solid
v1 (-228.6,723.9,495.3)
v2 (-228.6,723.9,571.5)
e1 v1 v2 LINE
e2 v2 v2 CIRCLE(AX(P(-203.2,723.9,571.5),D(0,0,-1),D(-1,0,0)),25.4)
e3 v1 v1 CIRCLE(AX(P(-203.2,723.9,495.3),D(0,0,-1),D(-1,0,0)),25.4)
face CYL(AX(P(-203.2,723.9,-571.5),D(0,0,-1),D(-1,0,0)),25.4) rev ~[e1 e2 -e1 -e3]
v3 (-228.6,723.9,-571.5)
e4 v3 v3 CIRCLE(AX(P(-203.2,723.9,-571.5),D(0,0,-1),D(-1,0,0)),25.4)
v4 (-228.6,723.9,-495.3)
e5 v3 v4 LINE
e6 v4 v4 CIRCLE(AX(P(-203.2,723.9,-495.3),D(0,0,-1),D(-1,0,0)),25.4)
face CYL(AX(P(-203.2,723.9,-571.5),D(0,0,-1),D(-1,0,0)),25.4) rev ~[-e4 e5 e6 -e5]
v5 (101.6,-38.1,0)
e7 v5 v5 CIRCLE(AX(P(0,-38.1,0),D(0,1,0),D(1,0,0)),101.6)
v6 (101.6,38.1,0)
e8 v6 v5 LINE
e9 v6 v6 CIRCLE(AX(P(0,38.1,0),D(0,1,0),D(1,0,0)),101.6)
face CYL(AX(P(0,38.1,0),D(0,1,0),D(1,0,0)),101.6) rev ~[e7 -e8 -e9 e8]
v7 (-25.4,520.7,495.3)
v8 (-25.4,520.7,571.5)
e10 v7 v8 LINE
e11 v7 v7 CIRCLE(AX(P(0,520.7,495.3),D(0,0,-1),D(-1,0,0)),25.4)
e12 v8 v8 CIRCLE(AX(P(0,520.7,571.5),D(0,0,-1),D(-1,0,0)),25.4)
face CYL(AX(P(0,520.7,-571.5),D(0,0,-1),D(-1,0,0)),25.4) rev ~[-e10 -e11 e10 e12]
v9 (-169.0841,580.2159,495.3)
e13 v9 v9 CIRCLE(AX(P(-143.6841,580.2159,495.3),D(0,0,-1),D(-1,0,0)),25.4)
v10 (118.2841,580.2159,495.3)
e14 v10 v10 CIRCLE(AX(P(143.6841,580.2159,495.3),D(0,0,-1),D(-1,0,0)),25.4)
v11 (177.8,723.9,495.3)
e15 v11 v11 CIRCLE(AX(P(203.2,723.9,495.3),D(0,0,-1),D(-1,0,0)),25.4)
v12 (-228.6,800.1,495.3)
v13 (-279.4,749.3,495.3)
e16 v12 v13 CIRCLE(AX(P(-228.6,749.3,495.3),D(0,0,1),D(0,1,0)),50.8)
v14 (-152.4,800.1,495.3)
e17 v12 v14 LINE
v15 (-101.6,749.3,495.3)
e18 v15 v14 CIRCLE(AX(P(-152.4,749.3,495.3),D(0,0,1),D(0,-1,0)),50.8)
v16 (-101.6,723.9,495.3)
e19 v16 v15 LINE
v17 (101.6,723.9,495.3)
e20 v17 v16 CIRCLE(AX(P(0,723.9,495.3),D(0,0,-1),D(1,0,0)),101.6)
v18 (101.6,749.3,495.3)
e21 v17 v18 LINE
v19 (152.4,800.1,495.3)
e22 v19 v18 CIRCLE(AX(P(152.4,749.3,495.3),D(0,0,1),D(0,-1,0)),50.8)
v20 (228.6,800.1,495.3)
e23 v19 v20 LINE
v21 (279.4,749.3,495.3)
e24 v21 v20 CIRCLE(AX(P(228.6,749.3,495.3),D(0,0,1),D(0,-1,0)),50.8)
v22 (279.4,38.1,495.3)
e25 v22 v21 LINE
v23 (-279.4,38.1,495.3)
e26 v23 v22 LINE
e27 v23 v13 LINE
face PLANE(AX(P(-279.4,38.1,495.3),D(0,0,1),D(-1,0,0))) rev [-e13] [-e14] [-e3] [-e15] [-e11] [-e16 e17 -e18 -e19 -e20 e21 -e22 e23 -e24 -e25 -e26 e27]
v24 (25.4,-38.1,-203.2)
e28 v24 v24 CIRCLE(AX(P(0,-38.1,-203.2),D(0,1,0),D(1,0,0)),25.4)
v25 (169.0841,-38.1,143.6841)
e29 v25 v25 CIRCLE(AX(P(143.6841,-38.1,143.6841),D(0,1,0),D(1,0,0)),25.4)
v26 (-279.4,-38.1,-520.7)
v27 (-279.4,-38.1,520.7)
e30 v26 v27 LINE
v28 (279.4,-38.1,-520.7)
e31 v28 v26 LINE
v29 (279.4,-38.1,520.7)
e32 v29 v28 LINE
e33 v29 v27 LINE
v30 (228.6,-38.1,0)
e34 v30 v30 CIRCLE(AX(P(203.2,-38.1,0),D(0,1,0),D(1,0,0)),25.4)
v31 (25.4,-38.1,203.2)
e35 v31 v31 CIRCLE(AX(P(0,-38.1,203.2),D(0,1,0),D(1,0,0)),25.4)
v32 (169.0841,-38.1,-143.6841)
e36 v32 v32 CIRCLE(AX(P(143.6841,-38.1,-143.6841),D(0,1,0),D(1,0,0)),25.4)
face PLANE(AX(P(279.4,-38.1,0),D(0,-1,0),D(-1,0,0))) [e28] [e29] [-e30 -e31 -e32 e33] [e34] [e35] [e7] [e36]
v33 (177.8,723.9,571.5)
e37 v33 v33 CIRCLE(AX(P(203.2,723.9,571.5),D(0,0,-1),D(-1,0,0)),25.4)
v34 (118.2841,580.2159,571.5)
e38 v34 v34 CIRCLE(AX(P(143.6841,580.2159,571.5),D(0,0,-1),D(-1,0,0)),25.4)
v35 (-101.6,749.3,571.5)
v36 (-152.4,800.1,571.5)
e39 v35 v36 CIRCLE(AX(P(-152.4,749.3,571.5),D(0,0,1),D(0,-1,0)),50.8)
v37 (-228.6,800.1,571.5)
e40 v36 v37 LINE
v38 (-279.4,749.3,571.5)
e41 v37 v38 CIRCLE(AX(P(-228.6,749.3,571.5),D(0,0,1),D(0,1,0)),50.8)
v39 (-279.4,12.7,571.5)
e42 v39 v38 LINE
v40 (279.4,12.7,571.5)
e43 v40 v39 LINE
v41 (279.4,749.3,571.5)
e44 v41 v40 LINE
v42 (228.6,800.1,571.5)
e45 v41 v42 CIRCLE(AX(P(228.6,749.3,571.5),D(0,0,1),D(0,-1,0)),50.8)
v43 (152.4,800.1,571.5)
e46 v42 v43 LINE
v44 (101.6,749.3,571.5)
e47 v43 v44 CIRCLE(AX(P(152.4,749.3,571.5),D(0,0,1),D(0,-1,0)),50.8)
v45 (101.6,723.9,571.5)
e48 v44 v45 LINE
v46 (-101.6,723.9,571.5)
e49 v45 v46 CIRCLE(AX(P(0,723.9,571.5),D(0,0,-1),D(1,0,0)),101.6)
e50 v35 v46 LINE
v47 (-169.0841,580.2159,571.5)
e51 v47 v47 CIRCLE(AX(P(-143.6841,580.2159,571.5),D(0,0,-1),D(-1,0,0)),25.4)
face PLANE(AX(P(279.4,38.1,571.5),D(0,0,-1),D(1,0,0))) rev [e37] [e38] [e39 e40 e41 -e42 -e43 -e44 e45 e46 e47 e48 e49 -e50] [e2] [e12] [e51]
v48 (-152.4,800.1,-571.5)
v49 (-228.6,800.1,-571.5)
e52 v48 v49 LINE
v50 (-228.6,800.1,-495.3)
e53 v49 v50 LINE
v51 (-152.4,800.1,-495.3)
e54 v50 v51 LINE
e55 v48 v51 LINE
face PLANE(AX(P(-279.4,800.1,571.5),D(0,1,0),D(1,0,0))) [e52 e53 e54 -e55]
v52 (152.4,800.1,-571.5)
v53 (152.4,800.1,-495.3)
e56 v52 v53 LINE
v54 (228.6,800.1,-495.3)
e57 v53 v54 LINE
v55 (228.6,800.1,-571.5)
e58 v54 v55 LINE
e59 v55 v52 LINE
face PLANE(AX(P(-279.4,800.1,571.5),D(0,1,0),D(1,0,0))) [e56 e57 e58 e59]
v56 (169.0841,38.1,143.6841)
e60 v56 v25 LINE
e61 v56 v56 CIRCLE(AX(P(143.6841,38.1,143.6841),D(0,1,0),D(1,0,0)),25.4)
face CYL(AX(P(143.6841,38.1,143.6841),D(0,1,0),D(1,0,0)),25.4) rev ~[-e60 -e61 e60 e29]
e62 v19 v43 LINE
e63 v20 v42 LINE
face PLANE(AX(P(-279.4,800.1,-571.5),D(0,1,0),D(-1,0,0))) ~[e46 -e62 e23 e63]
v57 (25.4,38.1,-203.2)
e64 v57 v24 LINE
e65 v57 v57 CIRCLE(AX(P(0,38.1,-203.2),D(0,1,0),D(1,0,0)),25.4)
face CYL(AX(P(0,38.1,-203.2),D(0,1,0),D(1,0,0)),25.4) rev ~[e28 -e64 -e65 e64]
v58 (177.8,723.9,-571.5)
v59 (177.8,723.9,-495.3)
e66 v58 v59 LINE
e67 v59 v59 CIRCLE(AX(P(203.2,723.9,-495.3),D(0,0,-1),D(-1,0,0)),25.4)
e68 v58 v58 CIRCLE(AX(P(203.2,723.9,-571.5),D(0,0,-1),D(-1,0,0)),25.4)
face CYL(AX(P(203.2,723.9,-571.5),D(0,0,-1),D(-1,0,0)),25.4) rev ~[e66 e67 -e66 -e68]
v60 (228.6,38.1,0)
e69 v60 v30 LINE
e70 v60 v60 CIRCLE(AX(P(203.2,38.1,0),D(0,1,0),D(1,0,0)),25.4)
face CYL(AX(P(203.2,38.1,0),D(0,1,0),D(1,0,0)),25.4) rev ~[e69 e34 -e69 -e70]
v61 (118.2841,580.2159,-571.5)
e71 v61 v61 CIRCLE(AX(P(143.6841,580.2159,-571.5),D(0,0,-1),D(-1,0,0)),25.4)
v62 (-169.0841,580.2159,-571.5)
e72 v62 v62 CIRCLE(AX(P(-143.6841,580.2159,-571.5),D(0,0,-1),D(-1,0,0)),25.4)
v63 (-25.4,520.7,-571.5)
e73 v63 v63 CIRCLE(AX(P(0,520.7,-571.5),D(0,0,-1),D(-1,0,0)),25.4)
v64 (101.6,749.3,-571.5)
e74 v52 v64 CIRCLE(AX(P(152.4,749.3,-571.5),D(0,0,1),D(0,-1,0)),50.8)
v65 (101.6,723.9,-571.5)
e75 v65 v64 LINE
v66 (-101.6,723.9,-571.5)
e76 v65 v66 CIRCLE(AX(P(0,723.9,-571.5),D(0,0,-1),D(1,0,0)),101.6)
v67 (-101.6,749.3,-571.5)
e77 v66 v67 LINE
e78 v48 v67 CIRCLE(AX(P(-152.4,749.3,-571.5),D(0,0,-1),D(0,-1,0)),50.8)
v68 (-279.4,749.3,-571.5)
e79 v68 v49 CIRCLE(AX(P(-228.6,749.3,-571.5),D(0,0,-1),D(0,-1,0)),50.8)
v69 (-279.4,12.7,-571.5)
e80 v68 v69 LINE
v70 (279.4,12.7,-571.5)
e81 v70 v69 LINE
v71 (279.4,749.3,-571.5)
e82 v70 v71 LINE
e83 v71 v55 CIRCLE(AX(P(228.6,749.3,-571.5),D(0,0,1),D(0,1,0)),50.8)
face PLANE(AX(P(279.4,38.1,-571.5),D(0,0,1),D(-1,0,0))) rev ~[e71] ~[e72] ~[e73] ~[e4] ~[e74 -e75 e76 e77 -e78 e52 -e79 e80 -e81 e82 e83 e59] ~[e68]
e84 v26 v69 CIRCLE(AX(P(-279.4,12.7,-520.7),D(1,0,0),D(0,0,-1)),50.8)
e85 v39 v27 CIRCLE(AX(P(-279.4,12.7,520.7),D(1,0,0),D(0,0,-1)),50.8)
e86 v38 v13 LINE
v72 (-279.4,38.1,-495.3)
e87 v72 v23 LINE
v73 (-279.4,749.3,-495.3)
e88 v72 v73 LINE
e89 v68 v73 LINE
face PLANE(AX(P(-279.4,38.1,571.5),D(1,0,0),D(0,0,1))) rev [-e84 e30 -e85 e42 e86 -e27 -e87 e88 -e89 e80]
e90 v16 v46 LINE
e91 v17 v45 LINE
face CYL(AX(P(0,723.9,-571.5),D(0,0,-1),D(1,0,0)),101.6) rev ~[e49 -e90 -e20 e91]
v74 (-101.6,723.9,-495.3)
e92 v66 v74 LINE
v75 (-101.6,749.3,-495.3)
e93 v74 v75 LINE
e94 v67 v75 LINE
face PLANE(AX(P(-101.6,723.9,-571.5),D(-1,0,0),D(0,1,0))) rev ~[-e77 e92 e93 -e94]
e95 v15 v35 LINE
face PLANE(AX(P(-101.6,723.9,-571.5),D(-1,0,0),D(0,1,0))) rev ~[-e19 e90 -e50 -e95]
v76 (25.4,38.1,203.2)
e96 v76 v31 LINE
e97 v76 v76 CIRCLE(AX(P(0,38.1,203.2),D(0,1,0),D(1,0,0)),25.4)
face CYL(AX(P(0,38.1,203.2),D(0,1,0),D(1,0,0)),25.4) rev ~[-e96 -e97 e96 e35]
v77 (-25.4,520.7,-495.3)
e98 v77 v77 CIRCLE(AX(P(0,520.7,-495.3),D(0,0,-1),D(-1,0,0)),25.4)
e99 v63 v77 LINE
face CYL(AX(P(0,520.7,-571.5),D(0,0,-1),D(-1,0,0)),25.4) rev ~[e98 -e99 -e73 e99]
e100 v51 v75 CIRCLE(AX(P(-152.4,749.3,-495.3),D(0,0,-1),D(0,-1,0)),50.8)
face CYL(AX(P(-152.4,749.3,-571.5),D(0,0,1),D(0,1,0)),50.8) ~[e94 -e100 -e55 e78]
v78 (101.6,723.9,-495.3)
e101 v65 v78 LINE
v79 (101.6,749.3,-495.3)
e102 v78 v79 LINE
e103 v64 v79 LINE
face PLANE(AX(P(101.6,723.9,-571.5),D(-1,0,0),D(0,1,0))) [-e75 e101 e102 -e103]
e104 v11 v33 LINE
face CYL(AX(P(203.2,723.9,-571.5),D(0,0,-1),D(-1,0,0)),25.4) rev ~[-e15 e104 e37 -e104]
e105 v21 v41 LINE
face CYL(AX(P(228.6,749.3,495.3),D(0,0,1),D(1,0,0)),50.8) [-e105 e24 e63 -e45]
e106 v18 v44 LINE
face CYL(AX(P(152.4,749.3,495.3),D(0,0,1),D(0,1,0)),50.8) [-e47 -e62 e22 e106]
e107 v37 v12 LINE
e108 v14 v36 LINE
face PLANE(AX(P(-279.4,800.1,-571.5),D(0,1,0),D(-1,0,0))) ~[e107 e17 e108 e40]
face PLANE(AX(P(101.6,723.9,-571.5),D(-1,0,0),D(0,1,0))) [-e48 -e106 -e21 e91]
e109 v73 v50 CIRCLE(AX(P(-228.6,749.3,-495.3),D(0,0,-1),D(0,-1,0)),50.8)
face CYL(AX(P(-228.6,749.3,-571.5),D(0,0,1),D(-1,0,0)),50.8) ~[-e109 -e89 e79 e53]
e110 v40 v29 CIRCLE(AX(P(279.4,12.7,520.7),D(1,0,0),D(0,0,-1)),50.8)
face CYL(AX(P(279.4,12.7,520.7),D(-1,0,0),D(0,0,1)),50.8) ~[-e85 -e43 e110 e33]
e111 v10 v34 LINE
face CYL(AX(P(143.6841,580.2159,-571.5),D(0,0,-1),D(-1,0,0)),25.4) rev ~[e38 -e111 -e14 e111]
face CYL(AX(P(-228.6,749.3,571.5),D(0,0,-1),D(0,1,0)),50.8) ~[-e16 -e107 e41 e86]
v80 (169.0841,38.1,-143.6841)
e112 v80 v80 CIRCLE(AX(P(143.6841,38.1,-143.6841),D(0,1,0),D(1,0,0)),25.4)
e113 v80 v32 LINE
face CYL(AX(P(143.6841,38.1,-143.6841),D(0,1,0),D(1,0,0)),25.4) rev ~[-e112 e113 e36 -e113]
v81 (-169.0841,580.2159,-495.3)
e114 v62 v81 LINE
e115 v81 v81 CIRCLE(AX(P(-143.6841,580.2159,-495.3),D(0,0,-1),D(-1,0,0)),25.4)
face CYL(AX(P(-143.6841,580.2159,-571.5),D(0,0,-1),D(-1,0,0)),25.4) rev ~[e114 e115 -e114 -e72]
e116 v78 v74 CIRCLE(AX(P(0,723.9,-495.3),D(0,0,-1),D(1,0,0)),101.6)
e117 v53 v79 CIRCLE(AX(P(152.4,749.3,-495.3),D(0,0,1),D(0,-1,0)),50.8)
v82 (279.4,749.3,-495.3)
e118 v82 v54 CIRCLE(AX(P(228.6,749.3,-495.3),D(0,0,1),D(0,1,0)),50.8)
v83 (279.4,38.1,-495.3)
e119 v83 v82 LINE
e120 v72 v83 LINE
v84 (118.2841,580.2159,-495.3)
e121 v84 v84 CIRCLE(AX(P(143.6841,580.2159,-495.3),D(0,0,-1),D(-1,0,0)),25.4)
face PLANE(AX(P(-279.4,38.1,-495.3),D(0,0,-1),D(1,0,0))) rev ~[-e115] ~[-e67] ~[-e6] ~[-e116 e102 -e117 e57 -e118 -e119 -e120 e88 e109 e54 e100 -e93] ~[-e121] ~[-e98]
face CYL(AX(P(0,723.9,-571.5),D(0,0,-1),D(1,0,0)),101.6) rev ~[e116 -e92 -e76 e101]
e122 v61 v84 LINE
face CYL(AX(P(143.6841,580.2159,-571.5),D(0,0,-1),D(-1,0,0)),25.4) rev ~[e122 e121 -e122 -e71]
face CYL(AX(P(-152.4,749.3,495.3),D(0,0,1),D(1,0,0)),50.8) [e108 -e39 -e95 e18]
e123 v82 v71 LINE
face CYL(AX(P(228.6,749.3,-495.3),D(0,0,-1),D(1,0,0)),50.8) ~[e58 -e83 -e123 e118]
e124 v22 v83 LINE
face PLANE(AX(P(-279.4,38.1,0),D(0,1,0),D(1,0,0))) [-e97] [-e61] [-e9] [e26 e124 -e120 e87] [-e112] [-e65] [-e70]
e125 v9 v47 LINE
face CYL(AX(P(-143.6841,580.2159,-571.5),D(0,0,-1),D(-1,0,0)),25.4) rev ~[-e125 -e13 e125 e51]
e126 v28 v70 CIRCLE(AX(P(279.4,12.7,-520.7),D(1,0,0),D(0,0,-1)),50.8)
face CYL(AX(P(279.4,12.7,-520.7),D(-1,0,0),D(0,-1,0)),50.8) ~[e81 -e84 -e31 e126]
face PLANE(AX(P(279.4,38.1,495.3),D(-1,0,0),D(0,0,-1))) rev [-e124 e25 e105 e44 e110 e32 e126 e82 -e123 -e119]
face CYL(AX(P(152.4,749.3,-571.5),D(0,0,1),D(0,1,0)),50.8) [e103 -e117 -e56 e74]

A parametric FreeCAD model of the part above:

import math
import FreeCAD as App
import Part
import Sketcher
Q = App.Units.Quantity


def edges_at(feature, points):
    """Names of the edges that pass closest to the given points."""
    edges = feature.Shape.Edges
    near = lambda p: min(range(len(edges)), key=lambda i: edges[i].distToShape(Part.Vertex(*p))[0])
    return sorted({f"Edge{near(p) + 1}" for p in points})

doc = App.newDocument("Part")
params = doc.addObject("Spreadsheet::Sheet", "Params")
for row, (alias, value) in enumerate([
    ("sketch1_width", "22 in"),
    ("sketch1_height", "3 in"),
    ("pad1_length", "45 in"),
    ("sketch2_height", "3 in"),
    ("sketch2_width", "22 in"),
    ("pad2_length", "30 in"),
    ("sketch3_diameter", "8 in"),
    ("sketch3_diameter2", "2 in"),
    ("sketch4_diameter", "2 in"),
    ("sketch4_radius", "4 in"),
    ("sketch4_height", "3 in"),
    ("fillet_radius", "2 in"),
], start=1):
    params.set(f"A{row}", alias)
    params.set(f"B{row}", "=" + value)
    params.setAlias(f"B{row}", alias)

body = doc.addObject("PartDesign::Body", "Body")

sketch1 = body.newObject("Sketcher::SketchObject", "Sketch")
sketch1.AttachmentSupport = (doc.getObject("XY_Plane"), [""])
sketch1.MapMode = "FlatFace"
sketch1.addGeometry([
    Part.LineSegment(App.Vector(279.4, 38.1, 0), App.Vector(-279.4, 38.1, 0)),
    Part.LineSegment(App.Vector(-279.4, 38.1, 0), App.Vector(-279.4, -38.1, 0)),
    Part.LineSegment(App.Vector(-279.4, -38.1, 0), App.Vector(279.4, -38.1, 0)),
    Part.LineSegment(App.Vector(279.4, -38.1, 0), App.Vector(279.4, 38.1, 0)),
], False)
sketch1.addConstraint([
    Sketcher.Constraint("Coincident", 0, 2, 1, 1),
    Sketcher.Constraint("Coincident", 1, 2, 2, 1),
    Sketcher.Constraint("Coincident", 2, 2, 3, 1),
    Sketcher.Constraint("Coincident", 3, 2, 0, 1),
    Sketcher.Constraint("Horizontal", 0),
    Sketcher.Constraint("Vertical", 1),
    Sketcher.Constraint("Horizontal", 2),
    Sketcher.Constraint("Vertical", 3),
    Sketcher.Constraint("Symmetric", 0, 2, 2, 2, -1, 1),
    Sketcher.Constraint("DistanceX", 0, 2, 0, 1, Q("22 in")),
    Sketcher.Constraint("DistanceY", 1, 2, 1, 1, Q("3 in")),
])
sketch1.setExpression("Constraints[9]", "Params.sketch1_width")
sketch1.setExpression("Constraints[10]", "Params.sketch1_height")
pad1 = body.newObject("PartDesign::Pad", "Pad")
pad1.Profile = sketch1
pad1.setExpression("Length", "Params.pad1_length")
pad1.Midplane = True

sketch2 = body.newObject("Sketcher::SketchObject", "Sketch001")
sketch2.AttachmentSupport = (doc.getObject("XZ_Plane"), [""])
sketch2.MapMode = "FlatFace"
sketch2.AttachmentOffset = App.Placement(App.Vector(0, 0, -1.5 * 25.4), App.Rotation())
sketch2.addGeometry([
    Part.LineSegment(App.Vector(-279.4, -495.3, 0), App.Vector(279.4, -495.3, 0)),
    Part.LineSegment(App.Vector(279.4, -495.3, 0), App.Vector(279.4, -571.5, 0)),
    Part.LineSegment(App.Vector(279.4, -571.5, 0), App.Vector(-279.4, -571.5, 0)),
    Part.LineSegment(App.Vector(-279.4, -571.5, 0), App.Vector(-279.4, -495.3, 0)),
], False)
sketch2.addConstraint([
    Sketcher.Constraint("Coincident", 0, 2, 1, 1),
    Sketcher.Constraint("Coincident", 1, 2, 2, 1),
    Sketcher.Constraint("Coincident", 2, 2, 3, 1),
    Sketcher.Constraint("Coincident", 3, 2, 0, 1),
    Sketcher.Constraint("Horizontal", 0),
    Sketcher.Constraint("Vertical", 1),
    Sketcher.Constraint("Horizontal", 2),
    Sketcher.Constraint("Vertical", 3),
    Sketcher.Constraint("DistanceY", 1, 2, 1, 1, Q("3 in")),
    Sketcher.Constraint("DistanceX", 0, 1, 0, 2, Q("22 in")),
    Sketcher.Constraint("DistanceX", -1, 1, 0, 2, Q("11 in")),
    Sketcher.Constraint("DistanceY", 0, 2, -1, 1, Q("19.5 in")),
])
sketch2.setExpression("Constraints[8]", "Params.sketch2_height")
sketch2.setExpression("Constraints[9]", "Params.sketch2_width")
pad2 = body.newObject("PartDesign::Pad", "Pad001")
pad2.Profile = sketch2
pad2.setExpression("Length", "Params.pad2_length")
pad2.Reversed = True
doc.recompute()

mirrored = body.newObject("PartDesign::Mirrored", "Mirrored")
mirrored.Originals = [pad2]
mirrored.MirrorPlane = (doc.getObject("XY_Plane"), [""])
body.Tip = mirrored

sketch3 = body.newObject("Sketcher::SketchObject", "Sketch002")
sketch3.AttachmentSupport = (doc.getObject("XZ_Plane"), [""])
sketch3.MapMode = "FlatFace"
sketch3.AttachmentOffset = App.Placement(App.Vector(0, 0, -1.5 * 25.4), App.Rotation())
sketch3.addGeometry([
    Part.Circle(App.Vector(0, 0, 0), App.Vector(0, 0, 1), 101.6),
    Part.Circle(App.Vector(0, -203.2, 0), App.Vector(0, 0, 1), 25.4),
    Part.Circle(App.Vector(143.6841, -143.6841, 0), App.Vector(0, 0, 1), 25.4),
    Part.Circle(App.Vector(203.2, 0, 0), App.Vector(0, 0, 1), 25.4),
    Part.Circle(App.Vector(143.6841, 143.6841, 0), App.Vector(0, 0, 1), 25.4),
    Part.Circle(App.Vector(0, 203.2, 0), App.Vector(0, 0, 1), 25.4),
], False)
sketch3.addConstraint([
    Sketcher.Constraint("Coincident", 0, 3, -1, 1),
    Sketcher.Constraint("Equal", 1, 2),
    Sketcher.Constraint("Equal", 2, 3),
    Sketcher.Constraint("Equal", 3, 4),
    Sketcher.Constraint("Equal", 4, 5),
    Sketcher.Constraint("Symmetric", 1, 3, 5, 3, -1, 1),
    Sketcher.Constraint("Symmetric", 2, 3, 4, 3, -1),
    Sketcher.Constraint("PointOnObject", 1, 3, -2),
    Sketcher.Constraint("PointOnObject", 3, 3, -1),
    Sketcher.Constraint("Diameter", 0, Q("8 in")),
    Sketcher.Constraint("Diameter", 1, Q("2 in")),
    Sketcher.Constraint("DistanceY", 1, 3, -1, 1, Q("8 in")),
    Sketcher.Constraint("DistanceX", -1, 1, 3, 3, Q("8 in")),
    Sketcher.Constraint("DistanceY", 2, 3, 4, 3, Q("11.3137 in")),
    Sketcher.Constraint("DistanceX", -1, 1, 2, 3, 143.684),
])
sketch3.setExpression("Constraints[9]", "Params.sketch3_diameter")
sketch3.setExpression("Constraints[10]", "Params.sketch3_diameter2")
pocket1 = body.newObject("PartDesign::Pocket", "Pocket")
pocket1.Profile = sketch3
pocket1.Type = "ThroughAll"
pocket1.Reversed = True

sketch4 = body.newObject("Sketcher::SketchObject", "Sketch003")
sketch4.AttachmentSupport = (doc.getObject("XY_Plane"), [""])
sketch4.MapMode = "FlatFace"
sketch4.AttachmentOffset = App.Placement(App.Vector(0, 0, -22.5 * 25.4), App.Rotation())
sketch4.addGeometry([
    Part.LineSegment(App.Vector(101.6, 800.1, 0), App.Vector(101.6, 723.9, 0)),
    Part.ArcOfCircle(Part.Circle(App.Vector(0, 723.9, 0), App.Vector(0, 0, 1), 101.6), math.radians(180), math.radians(360)),
    Part.LineSegment(App.Vector(-101.6, 723.9, 0), App.Vector(-101.6, 800.1, 0)),
    Part.LineSegment(App.Vector(-101.6, 800.1, 0), App.Vector(101.6, 800.1, 0)),
    Part.Circle(App.Vector(203.2, 723.9, 0), App.Vector(0, 0, 1), 25.4),
    Part.Circle(App.Vector(143.6841, 580.2159, 0), App.Vector(0, 0, 1), 25.4),
    Part.Circle(App.Vector(0, 520.7, 0), App.Vector(0, 0, 1), 25.4),
    Part.Circle(App.Vector(-143.6841, 580.2159, 0), App.Vector(0, 0, 1), 25.4),
    Part.Circle(App.Vector(-203.2, 723.9, 0), App.Vector(0, 0, 1), 25.4),
], False)
sketch4.addConstraint([
    Sketcher.Constraint("Tangent", 0, 2, 1, 2),
    Sketcher.Constraint("Tangent", 1, 1, 2, 1),
    Sketcher.Constraint("Coincident", 2, 2, 3, 1),
    Sketcher.Constraint("Coincident", 3, 2, 0, 1),
    Sketcher.Constraint("Vertical", 0),
    Sketcher.Constraint("Vertical", 2),
    Sketcher.Constraint("Horizontal", 3),
    Sketcher.Constraint("Equal", 4, 5),
    Sketcher.Constraint("Equal", 5, 6),
    Sketcher.Constraint("Equal", 6, 7),
    Sketcher.Constraint("Equal", 7, 8),
    Sketcher.Constraint("Symmetric", 5, 3, 7, 3, -2),
    Sketcher.Constraint("Symmetric", 4, 3, 8, 3, -2),
    Sketcher.Constraint("PointOnObject", 1, 3, -2),
    Sketcher.Constraint("PointOnObject", 6, 3, -2),
    Sketcher.Constraint("Horizontal", 1, 3, 4, 3),
    Sketcher.Constraint("Diameter", 4, Q("2 in")),
    Sketcher.Constraint("Radius", 1, Q("4 in")),
    Sketcher.Constraint("DistanceY", 0, 2, 0, 1, Q("3 in")),
    Sketcher.Constraint("DistanceX", -1, 1, 4, 3, Q("8 in")),
    Sketcher.Constraint("DistanceY", 6, 3, 1, 3, Q("8 in")),
    Sketcher.Constraint("DistanceY", -1, 1, 1, 3, Q("28.5 in")),
    Sketcher.Constraint("DistanceX", 7, 3, 5, 3, Q("11.3137 in")),
    Sketcher.Constraint("DistanceY", -1, 1, 5, 3, 580.216),
])
sketch4.setExpression("Constraints[16]", "Params.sketch4_diameter")
sketch4.setExpression("Constraints[17]", "Params.sketch4_radius")
sketch4.setExpression("Constraints[18]", "Params.sketch4_height")
pocket2 = body.newObject("PartDesign::Pocket", "Pocket001")
pocket2.Profile = sketch4
pocket2.Type = "ThroughAll"
pocket2.Reversed = True
doc.recompute()

fillet = body.newObject("PartDesign::Fillet", "Fillet")
fillet.Base = (pocket2, edges_at(pocket2, [
    (101.6, 800.1, -533.4),
    (-101.6, 800.1, -533.4),
    (-101.6, 800.1, 533.4),
    (101.6, 800.1, 533.4),
    (279.4, 800.1, 533.4),
    (-279.4, 800.1, 533.4),
    (279.4, 800.1, -533.4),
    (-279.4, 800.1, -533.4),
    (0, -38.1, -571.5),
    (0, -38.1, 571.5),
]))
fillet.setExpression("Radius", "Params.fillet_radius")

doc.recompute()
